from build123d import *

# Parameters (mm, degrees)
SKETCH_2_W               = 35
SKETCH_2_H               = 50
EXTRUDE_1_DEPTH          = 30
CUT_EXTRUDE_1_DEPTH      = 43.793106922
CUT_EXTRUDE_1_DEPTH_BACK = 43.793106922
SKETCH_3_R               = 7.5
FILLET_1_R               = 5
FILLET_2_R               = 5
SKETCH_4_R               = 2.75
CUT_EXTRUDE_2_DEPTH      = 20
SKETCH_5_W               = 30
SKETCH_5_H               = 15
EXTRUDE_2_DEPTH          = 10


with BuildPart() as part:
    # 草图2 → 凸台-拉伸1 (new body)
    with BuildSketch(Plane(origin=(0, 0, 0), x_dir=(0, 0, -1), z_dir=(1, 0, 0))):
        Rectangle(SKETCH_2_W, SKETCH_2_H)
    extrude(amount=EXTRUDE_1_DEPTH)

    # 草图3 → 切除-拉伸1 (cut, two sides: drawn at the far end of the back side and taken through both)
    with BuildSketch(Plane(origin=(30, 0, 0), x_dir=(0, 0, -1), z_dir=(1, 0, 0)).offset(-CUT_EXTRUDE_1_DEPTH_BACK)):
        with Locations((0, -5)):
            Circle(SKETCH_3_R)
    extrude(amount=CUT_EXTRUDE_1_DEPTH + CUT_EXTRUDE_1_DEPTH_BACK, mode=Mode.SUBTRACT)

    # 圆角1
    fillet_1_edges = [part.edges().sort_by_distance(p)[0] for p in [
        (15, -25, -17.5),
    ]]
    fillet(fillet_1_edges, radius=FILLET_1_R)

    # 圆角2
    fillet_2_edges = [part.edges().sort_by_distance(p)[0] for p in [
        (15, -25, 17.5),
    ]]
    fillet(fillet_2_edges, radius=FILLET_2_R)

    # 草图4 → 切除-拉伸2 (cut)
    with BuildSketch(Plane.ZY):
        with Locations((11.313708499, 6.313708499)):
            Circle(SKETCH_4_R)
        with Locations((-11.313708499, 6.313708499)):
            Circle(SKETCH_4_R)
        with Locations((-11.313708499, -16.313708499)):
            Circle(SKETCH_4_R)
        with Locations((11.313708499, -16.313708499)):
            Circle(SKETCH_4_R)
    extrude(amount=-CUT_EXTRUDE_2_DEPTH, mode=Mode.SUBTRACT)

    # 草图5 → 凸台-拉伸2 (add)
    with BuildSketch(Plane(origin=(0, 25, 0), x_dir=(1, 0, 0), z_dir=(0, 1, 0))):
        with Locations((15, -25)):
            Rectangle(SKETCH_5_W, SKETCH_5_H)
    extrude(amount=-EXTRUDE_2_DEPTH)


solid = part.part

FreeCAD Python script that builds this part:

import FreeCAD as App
import Part
import Sketcher


def edges_at(feature, points):
    """Names of the edges that pass closest to the given points."""
    edges = feature.Shape.Edges
    near = lambda p: min(range(len(edges)), key=lambda i: edges[i].distToShape(Part.Vertex(*p))[0])
    return sorted({f"Edge{near(p) + 1}" for p in points})


def add_polygon(sketch, points):
    """Adds a closed chain of lines whose ends are joined by coincident constraints."""
    first, n = sketch.GeometryCount, len(points)
    for a, b in zip(points, points[1:] + points[:1]):
        sketch.addGeometry(Part.LineSegment(App.Vector(*a, 0), App.Vector(*b, 0)), False)
    for i in range(n):
        sketch.addConstraint(Sketcher.Constraint("Coincident", first + i, 2, first + (i + 1) % n, 1))

doc = App.newDocument("Part")
body = doc.addObject("PartDesign::Body", "Body")

sketch1 = doc.addObject("Sketcher::SketchObject", "Sketch")
body.addObject(sketch1)
sketch1.AttachmentSupport = (doc.YZ_Plane, [""])
sketch1.MapMode = "FlatFace"
add_polygon(sketch1, [(25, 18), (-25, 18), (-25, -18), (25, -18)])
sketch1.addConstraint(Sketcher.Constraint("Horizontal", 0))
sketch1.addConstraint(Sketcher.Constraint("Vertical", 1))
sketch1.addConstraint(Sketcher.Constraint("Horizontal", 2))
sketch1.addConstraint(Sketcher.Constraint("Vertical", 3))
sketch1.addConstraint(Sketcher.Constraint("Symmetric", 0, 2, 2, 2, -1, 1))
sketch1.addConstraint(Sketcher.Constraint("DistanceX", 0, 2, 0, 1, 50.0))
sketch1.addConstraint(Sketcher.Constraint("DistanceY", 1, 2, 1, 1, 35.0))
pad1 = doc.addObject("PartDesign::Pad", "Pad")
body.addObject(pad1)
pad1.Profile = sketch1
pad1.Length = 30

sketch2 = doc.addObject("Sketcher::SketchObject", "Sketch001")
body.addObject(sketch2)
sketch2.AttachmentSupport = (doc.YZ_Plane, [""])
sketch2.MapMode = "FlatFace"
sketch2.AttachmentOffset = App.Placement(App.Vector(0, 0, 30), App.Rotation())
sketch2.addGeometry(Part.Circle(App.Vector(-5, 0, 0), App.Vector(0, 0, 1), 8), False)
sketch2.addConstraint(Sketcher.Constraint("PointOnObject", 0, 3, -1))
sketch2.addConstraint(Sketcher.Constraint("Diameter", 0, 15.0))
sketch2.addConstraint(Sketcher.Constraint("DistanceX", 0, 3, -1, 1, 5.0))
pocket1 = doc.addObject("PartDesign::Pocket", "Pocket")
body.addObject(pocket1)
pocket1.Profile = sketch2
pocket1.Type = "ThroughAll"
pocket1.Midplane = True
doc.recompute()

fillet = doc.addObject("PartDesign::Fillet", "Fillet")
body.addObject(fillet)
fillet.Base = (pocket1, edges_at(pocket1, [(15, -25, -17.5)]))
fillet.Radius = 5
doc.recompute()

fillet2 = doc.addObject("PartDesign::Fillet", "Fillet001")
body.addObject(fillet2)
fillet2.Base = (fillet, edges_at(fillet, [(15, -25, 17.5)]))
fillet2.Radius = 5

sketch3 = doc.addObject("Sketcher::SketchObject", "Sketch002")
body.addObject(sketch3)
sketch3.AttachmentSupport = (doc.YZ_Plane, [""])
sketch3.MapMode = "FlatFace"
sketch3.addGeometry(Part.Circle(App.Vector(6.3, 11.3, 0), App.Vector(0, 0, 1), 2.8), False)
sketch3.addGeometry(Part.Circle(App.Vector(6.3, -11.3, 0), App.Vector(0, 0, 1), 2.8), False)
sketch3.addGeometry(Part.Circle(App.Vector(-16.3, -11.3, 0), App.Vector(0, 0, 1), 2.8), False)
sketch3.addGeometry(Part.Circle(App.Vector(-16.3, 11.3, 0), App.Vector(0, 0, 1), 2.8), False)
sketch3.addConstraint(Sketcher.Constraint("Equal", 0, 1))
sketch3.addConstraint(Sketcher.Constraint("Equal", 1, 2))
sketch3.addConstraint(Sketcher.Constraint("Equal", 2, 3))
sketch3.addConstraint(Sketcher.Constraint("Symmetric", 0, 3, 1, 3, -1))
sketch3.addConstraint(Sketcher.Constraint("Symmetric", 2, 3, 3, 3, -1))
sketch3.addConstraint(Sketcher.Constraint("Horizontal", 1, 3, 2, 3))
sketch3.addConstraint(Sketcher.Constraint("Diameter", 0, 5.5))
sketch3.addConstraint(Sketcher.Constraint("DistanceX", -1, 1, 0, 3, 6.313708))
sketch3.addConstraint(Sketcher.Constraint("DistanceY", -1, 1, 0, 3, 11.313708))
sketch3.addConstraint(Sketcher.Constraint("DistanceX", 2, 3, -1, 1, 16.313708))
pocket2 = doc.addObject("PartDesign::Pocket", "Pocket001")
body.addObject(pocket2)
pocket2.Profile = sketch3
pocket2.Length = 20
pocket2.Reversed = True

sketch4 = doc.addObject("Sketcher::SketchObject", "Sketch003")
body.addObject(sketch4)
sketch4.AttachmentSupport = (doc.XZ_Plane, [""])
sketch4.MapMode = "FlatFace"
sketch4.AttachmentOffset = App.Placement(App.Vector(0, 0, -25), App.Rotation())
add_polygon(sketch4, [(0, 18), (0, 32), (30, 32), (30, 18)])
sketch4.addConstraint(Sketcher.Constraint("Vertical", 0))
sketch4.addConstraint(Sketcher.Constraint("Horizontal", 1))
sketch4.addConstraint(Sketcher.Constraint("Vertical", 2))
sketch4.addConstraint(Sketcher.Constraint("Horizontal", 3))
sketch4.addConstraint(Sketcher.Constraint("PointOnObject", 0, 2, -2))
sketch4.addConstraint(Sketcher.Constraint("DistanceX", 1, 1, 1, 2, 30.0))
sketch4.addConstraint(Sketcher.Constraint("DistanceY", 0, 1, 0, 2, 15.0))
sketch4.addConstraint(Sketcher.Constraint("DistanceY", -1, 1, 0, 2, 32.5))
pad2 = doc.addObject("PartDesign::Pad", "Pad001")
body.addObject(pad2)
pad2.Profile = sketch4
pad2.Length = 10

doc.recompute()
